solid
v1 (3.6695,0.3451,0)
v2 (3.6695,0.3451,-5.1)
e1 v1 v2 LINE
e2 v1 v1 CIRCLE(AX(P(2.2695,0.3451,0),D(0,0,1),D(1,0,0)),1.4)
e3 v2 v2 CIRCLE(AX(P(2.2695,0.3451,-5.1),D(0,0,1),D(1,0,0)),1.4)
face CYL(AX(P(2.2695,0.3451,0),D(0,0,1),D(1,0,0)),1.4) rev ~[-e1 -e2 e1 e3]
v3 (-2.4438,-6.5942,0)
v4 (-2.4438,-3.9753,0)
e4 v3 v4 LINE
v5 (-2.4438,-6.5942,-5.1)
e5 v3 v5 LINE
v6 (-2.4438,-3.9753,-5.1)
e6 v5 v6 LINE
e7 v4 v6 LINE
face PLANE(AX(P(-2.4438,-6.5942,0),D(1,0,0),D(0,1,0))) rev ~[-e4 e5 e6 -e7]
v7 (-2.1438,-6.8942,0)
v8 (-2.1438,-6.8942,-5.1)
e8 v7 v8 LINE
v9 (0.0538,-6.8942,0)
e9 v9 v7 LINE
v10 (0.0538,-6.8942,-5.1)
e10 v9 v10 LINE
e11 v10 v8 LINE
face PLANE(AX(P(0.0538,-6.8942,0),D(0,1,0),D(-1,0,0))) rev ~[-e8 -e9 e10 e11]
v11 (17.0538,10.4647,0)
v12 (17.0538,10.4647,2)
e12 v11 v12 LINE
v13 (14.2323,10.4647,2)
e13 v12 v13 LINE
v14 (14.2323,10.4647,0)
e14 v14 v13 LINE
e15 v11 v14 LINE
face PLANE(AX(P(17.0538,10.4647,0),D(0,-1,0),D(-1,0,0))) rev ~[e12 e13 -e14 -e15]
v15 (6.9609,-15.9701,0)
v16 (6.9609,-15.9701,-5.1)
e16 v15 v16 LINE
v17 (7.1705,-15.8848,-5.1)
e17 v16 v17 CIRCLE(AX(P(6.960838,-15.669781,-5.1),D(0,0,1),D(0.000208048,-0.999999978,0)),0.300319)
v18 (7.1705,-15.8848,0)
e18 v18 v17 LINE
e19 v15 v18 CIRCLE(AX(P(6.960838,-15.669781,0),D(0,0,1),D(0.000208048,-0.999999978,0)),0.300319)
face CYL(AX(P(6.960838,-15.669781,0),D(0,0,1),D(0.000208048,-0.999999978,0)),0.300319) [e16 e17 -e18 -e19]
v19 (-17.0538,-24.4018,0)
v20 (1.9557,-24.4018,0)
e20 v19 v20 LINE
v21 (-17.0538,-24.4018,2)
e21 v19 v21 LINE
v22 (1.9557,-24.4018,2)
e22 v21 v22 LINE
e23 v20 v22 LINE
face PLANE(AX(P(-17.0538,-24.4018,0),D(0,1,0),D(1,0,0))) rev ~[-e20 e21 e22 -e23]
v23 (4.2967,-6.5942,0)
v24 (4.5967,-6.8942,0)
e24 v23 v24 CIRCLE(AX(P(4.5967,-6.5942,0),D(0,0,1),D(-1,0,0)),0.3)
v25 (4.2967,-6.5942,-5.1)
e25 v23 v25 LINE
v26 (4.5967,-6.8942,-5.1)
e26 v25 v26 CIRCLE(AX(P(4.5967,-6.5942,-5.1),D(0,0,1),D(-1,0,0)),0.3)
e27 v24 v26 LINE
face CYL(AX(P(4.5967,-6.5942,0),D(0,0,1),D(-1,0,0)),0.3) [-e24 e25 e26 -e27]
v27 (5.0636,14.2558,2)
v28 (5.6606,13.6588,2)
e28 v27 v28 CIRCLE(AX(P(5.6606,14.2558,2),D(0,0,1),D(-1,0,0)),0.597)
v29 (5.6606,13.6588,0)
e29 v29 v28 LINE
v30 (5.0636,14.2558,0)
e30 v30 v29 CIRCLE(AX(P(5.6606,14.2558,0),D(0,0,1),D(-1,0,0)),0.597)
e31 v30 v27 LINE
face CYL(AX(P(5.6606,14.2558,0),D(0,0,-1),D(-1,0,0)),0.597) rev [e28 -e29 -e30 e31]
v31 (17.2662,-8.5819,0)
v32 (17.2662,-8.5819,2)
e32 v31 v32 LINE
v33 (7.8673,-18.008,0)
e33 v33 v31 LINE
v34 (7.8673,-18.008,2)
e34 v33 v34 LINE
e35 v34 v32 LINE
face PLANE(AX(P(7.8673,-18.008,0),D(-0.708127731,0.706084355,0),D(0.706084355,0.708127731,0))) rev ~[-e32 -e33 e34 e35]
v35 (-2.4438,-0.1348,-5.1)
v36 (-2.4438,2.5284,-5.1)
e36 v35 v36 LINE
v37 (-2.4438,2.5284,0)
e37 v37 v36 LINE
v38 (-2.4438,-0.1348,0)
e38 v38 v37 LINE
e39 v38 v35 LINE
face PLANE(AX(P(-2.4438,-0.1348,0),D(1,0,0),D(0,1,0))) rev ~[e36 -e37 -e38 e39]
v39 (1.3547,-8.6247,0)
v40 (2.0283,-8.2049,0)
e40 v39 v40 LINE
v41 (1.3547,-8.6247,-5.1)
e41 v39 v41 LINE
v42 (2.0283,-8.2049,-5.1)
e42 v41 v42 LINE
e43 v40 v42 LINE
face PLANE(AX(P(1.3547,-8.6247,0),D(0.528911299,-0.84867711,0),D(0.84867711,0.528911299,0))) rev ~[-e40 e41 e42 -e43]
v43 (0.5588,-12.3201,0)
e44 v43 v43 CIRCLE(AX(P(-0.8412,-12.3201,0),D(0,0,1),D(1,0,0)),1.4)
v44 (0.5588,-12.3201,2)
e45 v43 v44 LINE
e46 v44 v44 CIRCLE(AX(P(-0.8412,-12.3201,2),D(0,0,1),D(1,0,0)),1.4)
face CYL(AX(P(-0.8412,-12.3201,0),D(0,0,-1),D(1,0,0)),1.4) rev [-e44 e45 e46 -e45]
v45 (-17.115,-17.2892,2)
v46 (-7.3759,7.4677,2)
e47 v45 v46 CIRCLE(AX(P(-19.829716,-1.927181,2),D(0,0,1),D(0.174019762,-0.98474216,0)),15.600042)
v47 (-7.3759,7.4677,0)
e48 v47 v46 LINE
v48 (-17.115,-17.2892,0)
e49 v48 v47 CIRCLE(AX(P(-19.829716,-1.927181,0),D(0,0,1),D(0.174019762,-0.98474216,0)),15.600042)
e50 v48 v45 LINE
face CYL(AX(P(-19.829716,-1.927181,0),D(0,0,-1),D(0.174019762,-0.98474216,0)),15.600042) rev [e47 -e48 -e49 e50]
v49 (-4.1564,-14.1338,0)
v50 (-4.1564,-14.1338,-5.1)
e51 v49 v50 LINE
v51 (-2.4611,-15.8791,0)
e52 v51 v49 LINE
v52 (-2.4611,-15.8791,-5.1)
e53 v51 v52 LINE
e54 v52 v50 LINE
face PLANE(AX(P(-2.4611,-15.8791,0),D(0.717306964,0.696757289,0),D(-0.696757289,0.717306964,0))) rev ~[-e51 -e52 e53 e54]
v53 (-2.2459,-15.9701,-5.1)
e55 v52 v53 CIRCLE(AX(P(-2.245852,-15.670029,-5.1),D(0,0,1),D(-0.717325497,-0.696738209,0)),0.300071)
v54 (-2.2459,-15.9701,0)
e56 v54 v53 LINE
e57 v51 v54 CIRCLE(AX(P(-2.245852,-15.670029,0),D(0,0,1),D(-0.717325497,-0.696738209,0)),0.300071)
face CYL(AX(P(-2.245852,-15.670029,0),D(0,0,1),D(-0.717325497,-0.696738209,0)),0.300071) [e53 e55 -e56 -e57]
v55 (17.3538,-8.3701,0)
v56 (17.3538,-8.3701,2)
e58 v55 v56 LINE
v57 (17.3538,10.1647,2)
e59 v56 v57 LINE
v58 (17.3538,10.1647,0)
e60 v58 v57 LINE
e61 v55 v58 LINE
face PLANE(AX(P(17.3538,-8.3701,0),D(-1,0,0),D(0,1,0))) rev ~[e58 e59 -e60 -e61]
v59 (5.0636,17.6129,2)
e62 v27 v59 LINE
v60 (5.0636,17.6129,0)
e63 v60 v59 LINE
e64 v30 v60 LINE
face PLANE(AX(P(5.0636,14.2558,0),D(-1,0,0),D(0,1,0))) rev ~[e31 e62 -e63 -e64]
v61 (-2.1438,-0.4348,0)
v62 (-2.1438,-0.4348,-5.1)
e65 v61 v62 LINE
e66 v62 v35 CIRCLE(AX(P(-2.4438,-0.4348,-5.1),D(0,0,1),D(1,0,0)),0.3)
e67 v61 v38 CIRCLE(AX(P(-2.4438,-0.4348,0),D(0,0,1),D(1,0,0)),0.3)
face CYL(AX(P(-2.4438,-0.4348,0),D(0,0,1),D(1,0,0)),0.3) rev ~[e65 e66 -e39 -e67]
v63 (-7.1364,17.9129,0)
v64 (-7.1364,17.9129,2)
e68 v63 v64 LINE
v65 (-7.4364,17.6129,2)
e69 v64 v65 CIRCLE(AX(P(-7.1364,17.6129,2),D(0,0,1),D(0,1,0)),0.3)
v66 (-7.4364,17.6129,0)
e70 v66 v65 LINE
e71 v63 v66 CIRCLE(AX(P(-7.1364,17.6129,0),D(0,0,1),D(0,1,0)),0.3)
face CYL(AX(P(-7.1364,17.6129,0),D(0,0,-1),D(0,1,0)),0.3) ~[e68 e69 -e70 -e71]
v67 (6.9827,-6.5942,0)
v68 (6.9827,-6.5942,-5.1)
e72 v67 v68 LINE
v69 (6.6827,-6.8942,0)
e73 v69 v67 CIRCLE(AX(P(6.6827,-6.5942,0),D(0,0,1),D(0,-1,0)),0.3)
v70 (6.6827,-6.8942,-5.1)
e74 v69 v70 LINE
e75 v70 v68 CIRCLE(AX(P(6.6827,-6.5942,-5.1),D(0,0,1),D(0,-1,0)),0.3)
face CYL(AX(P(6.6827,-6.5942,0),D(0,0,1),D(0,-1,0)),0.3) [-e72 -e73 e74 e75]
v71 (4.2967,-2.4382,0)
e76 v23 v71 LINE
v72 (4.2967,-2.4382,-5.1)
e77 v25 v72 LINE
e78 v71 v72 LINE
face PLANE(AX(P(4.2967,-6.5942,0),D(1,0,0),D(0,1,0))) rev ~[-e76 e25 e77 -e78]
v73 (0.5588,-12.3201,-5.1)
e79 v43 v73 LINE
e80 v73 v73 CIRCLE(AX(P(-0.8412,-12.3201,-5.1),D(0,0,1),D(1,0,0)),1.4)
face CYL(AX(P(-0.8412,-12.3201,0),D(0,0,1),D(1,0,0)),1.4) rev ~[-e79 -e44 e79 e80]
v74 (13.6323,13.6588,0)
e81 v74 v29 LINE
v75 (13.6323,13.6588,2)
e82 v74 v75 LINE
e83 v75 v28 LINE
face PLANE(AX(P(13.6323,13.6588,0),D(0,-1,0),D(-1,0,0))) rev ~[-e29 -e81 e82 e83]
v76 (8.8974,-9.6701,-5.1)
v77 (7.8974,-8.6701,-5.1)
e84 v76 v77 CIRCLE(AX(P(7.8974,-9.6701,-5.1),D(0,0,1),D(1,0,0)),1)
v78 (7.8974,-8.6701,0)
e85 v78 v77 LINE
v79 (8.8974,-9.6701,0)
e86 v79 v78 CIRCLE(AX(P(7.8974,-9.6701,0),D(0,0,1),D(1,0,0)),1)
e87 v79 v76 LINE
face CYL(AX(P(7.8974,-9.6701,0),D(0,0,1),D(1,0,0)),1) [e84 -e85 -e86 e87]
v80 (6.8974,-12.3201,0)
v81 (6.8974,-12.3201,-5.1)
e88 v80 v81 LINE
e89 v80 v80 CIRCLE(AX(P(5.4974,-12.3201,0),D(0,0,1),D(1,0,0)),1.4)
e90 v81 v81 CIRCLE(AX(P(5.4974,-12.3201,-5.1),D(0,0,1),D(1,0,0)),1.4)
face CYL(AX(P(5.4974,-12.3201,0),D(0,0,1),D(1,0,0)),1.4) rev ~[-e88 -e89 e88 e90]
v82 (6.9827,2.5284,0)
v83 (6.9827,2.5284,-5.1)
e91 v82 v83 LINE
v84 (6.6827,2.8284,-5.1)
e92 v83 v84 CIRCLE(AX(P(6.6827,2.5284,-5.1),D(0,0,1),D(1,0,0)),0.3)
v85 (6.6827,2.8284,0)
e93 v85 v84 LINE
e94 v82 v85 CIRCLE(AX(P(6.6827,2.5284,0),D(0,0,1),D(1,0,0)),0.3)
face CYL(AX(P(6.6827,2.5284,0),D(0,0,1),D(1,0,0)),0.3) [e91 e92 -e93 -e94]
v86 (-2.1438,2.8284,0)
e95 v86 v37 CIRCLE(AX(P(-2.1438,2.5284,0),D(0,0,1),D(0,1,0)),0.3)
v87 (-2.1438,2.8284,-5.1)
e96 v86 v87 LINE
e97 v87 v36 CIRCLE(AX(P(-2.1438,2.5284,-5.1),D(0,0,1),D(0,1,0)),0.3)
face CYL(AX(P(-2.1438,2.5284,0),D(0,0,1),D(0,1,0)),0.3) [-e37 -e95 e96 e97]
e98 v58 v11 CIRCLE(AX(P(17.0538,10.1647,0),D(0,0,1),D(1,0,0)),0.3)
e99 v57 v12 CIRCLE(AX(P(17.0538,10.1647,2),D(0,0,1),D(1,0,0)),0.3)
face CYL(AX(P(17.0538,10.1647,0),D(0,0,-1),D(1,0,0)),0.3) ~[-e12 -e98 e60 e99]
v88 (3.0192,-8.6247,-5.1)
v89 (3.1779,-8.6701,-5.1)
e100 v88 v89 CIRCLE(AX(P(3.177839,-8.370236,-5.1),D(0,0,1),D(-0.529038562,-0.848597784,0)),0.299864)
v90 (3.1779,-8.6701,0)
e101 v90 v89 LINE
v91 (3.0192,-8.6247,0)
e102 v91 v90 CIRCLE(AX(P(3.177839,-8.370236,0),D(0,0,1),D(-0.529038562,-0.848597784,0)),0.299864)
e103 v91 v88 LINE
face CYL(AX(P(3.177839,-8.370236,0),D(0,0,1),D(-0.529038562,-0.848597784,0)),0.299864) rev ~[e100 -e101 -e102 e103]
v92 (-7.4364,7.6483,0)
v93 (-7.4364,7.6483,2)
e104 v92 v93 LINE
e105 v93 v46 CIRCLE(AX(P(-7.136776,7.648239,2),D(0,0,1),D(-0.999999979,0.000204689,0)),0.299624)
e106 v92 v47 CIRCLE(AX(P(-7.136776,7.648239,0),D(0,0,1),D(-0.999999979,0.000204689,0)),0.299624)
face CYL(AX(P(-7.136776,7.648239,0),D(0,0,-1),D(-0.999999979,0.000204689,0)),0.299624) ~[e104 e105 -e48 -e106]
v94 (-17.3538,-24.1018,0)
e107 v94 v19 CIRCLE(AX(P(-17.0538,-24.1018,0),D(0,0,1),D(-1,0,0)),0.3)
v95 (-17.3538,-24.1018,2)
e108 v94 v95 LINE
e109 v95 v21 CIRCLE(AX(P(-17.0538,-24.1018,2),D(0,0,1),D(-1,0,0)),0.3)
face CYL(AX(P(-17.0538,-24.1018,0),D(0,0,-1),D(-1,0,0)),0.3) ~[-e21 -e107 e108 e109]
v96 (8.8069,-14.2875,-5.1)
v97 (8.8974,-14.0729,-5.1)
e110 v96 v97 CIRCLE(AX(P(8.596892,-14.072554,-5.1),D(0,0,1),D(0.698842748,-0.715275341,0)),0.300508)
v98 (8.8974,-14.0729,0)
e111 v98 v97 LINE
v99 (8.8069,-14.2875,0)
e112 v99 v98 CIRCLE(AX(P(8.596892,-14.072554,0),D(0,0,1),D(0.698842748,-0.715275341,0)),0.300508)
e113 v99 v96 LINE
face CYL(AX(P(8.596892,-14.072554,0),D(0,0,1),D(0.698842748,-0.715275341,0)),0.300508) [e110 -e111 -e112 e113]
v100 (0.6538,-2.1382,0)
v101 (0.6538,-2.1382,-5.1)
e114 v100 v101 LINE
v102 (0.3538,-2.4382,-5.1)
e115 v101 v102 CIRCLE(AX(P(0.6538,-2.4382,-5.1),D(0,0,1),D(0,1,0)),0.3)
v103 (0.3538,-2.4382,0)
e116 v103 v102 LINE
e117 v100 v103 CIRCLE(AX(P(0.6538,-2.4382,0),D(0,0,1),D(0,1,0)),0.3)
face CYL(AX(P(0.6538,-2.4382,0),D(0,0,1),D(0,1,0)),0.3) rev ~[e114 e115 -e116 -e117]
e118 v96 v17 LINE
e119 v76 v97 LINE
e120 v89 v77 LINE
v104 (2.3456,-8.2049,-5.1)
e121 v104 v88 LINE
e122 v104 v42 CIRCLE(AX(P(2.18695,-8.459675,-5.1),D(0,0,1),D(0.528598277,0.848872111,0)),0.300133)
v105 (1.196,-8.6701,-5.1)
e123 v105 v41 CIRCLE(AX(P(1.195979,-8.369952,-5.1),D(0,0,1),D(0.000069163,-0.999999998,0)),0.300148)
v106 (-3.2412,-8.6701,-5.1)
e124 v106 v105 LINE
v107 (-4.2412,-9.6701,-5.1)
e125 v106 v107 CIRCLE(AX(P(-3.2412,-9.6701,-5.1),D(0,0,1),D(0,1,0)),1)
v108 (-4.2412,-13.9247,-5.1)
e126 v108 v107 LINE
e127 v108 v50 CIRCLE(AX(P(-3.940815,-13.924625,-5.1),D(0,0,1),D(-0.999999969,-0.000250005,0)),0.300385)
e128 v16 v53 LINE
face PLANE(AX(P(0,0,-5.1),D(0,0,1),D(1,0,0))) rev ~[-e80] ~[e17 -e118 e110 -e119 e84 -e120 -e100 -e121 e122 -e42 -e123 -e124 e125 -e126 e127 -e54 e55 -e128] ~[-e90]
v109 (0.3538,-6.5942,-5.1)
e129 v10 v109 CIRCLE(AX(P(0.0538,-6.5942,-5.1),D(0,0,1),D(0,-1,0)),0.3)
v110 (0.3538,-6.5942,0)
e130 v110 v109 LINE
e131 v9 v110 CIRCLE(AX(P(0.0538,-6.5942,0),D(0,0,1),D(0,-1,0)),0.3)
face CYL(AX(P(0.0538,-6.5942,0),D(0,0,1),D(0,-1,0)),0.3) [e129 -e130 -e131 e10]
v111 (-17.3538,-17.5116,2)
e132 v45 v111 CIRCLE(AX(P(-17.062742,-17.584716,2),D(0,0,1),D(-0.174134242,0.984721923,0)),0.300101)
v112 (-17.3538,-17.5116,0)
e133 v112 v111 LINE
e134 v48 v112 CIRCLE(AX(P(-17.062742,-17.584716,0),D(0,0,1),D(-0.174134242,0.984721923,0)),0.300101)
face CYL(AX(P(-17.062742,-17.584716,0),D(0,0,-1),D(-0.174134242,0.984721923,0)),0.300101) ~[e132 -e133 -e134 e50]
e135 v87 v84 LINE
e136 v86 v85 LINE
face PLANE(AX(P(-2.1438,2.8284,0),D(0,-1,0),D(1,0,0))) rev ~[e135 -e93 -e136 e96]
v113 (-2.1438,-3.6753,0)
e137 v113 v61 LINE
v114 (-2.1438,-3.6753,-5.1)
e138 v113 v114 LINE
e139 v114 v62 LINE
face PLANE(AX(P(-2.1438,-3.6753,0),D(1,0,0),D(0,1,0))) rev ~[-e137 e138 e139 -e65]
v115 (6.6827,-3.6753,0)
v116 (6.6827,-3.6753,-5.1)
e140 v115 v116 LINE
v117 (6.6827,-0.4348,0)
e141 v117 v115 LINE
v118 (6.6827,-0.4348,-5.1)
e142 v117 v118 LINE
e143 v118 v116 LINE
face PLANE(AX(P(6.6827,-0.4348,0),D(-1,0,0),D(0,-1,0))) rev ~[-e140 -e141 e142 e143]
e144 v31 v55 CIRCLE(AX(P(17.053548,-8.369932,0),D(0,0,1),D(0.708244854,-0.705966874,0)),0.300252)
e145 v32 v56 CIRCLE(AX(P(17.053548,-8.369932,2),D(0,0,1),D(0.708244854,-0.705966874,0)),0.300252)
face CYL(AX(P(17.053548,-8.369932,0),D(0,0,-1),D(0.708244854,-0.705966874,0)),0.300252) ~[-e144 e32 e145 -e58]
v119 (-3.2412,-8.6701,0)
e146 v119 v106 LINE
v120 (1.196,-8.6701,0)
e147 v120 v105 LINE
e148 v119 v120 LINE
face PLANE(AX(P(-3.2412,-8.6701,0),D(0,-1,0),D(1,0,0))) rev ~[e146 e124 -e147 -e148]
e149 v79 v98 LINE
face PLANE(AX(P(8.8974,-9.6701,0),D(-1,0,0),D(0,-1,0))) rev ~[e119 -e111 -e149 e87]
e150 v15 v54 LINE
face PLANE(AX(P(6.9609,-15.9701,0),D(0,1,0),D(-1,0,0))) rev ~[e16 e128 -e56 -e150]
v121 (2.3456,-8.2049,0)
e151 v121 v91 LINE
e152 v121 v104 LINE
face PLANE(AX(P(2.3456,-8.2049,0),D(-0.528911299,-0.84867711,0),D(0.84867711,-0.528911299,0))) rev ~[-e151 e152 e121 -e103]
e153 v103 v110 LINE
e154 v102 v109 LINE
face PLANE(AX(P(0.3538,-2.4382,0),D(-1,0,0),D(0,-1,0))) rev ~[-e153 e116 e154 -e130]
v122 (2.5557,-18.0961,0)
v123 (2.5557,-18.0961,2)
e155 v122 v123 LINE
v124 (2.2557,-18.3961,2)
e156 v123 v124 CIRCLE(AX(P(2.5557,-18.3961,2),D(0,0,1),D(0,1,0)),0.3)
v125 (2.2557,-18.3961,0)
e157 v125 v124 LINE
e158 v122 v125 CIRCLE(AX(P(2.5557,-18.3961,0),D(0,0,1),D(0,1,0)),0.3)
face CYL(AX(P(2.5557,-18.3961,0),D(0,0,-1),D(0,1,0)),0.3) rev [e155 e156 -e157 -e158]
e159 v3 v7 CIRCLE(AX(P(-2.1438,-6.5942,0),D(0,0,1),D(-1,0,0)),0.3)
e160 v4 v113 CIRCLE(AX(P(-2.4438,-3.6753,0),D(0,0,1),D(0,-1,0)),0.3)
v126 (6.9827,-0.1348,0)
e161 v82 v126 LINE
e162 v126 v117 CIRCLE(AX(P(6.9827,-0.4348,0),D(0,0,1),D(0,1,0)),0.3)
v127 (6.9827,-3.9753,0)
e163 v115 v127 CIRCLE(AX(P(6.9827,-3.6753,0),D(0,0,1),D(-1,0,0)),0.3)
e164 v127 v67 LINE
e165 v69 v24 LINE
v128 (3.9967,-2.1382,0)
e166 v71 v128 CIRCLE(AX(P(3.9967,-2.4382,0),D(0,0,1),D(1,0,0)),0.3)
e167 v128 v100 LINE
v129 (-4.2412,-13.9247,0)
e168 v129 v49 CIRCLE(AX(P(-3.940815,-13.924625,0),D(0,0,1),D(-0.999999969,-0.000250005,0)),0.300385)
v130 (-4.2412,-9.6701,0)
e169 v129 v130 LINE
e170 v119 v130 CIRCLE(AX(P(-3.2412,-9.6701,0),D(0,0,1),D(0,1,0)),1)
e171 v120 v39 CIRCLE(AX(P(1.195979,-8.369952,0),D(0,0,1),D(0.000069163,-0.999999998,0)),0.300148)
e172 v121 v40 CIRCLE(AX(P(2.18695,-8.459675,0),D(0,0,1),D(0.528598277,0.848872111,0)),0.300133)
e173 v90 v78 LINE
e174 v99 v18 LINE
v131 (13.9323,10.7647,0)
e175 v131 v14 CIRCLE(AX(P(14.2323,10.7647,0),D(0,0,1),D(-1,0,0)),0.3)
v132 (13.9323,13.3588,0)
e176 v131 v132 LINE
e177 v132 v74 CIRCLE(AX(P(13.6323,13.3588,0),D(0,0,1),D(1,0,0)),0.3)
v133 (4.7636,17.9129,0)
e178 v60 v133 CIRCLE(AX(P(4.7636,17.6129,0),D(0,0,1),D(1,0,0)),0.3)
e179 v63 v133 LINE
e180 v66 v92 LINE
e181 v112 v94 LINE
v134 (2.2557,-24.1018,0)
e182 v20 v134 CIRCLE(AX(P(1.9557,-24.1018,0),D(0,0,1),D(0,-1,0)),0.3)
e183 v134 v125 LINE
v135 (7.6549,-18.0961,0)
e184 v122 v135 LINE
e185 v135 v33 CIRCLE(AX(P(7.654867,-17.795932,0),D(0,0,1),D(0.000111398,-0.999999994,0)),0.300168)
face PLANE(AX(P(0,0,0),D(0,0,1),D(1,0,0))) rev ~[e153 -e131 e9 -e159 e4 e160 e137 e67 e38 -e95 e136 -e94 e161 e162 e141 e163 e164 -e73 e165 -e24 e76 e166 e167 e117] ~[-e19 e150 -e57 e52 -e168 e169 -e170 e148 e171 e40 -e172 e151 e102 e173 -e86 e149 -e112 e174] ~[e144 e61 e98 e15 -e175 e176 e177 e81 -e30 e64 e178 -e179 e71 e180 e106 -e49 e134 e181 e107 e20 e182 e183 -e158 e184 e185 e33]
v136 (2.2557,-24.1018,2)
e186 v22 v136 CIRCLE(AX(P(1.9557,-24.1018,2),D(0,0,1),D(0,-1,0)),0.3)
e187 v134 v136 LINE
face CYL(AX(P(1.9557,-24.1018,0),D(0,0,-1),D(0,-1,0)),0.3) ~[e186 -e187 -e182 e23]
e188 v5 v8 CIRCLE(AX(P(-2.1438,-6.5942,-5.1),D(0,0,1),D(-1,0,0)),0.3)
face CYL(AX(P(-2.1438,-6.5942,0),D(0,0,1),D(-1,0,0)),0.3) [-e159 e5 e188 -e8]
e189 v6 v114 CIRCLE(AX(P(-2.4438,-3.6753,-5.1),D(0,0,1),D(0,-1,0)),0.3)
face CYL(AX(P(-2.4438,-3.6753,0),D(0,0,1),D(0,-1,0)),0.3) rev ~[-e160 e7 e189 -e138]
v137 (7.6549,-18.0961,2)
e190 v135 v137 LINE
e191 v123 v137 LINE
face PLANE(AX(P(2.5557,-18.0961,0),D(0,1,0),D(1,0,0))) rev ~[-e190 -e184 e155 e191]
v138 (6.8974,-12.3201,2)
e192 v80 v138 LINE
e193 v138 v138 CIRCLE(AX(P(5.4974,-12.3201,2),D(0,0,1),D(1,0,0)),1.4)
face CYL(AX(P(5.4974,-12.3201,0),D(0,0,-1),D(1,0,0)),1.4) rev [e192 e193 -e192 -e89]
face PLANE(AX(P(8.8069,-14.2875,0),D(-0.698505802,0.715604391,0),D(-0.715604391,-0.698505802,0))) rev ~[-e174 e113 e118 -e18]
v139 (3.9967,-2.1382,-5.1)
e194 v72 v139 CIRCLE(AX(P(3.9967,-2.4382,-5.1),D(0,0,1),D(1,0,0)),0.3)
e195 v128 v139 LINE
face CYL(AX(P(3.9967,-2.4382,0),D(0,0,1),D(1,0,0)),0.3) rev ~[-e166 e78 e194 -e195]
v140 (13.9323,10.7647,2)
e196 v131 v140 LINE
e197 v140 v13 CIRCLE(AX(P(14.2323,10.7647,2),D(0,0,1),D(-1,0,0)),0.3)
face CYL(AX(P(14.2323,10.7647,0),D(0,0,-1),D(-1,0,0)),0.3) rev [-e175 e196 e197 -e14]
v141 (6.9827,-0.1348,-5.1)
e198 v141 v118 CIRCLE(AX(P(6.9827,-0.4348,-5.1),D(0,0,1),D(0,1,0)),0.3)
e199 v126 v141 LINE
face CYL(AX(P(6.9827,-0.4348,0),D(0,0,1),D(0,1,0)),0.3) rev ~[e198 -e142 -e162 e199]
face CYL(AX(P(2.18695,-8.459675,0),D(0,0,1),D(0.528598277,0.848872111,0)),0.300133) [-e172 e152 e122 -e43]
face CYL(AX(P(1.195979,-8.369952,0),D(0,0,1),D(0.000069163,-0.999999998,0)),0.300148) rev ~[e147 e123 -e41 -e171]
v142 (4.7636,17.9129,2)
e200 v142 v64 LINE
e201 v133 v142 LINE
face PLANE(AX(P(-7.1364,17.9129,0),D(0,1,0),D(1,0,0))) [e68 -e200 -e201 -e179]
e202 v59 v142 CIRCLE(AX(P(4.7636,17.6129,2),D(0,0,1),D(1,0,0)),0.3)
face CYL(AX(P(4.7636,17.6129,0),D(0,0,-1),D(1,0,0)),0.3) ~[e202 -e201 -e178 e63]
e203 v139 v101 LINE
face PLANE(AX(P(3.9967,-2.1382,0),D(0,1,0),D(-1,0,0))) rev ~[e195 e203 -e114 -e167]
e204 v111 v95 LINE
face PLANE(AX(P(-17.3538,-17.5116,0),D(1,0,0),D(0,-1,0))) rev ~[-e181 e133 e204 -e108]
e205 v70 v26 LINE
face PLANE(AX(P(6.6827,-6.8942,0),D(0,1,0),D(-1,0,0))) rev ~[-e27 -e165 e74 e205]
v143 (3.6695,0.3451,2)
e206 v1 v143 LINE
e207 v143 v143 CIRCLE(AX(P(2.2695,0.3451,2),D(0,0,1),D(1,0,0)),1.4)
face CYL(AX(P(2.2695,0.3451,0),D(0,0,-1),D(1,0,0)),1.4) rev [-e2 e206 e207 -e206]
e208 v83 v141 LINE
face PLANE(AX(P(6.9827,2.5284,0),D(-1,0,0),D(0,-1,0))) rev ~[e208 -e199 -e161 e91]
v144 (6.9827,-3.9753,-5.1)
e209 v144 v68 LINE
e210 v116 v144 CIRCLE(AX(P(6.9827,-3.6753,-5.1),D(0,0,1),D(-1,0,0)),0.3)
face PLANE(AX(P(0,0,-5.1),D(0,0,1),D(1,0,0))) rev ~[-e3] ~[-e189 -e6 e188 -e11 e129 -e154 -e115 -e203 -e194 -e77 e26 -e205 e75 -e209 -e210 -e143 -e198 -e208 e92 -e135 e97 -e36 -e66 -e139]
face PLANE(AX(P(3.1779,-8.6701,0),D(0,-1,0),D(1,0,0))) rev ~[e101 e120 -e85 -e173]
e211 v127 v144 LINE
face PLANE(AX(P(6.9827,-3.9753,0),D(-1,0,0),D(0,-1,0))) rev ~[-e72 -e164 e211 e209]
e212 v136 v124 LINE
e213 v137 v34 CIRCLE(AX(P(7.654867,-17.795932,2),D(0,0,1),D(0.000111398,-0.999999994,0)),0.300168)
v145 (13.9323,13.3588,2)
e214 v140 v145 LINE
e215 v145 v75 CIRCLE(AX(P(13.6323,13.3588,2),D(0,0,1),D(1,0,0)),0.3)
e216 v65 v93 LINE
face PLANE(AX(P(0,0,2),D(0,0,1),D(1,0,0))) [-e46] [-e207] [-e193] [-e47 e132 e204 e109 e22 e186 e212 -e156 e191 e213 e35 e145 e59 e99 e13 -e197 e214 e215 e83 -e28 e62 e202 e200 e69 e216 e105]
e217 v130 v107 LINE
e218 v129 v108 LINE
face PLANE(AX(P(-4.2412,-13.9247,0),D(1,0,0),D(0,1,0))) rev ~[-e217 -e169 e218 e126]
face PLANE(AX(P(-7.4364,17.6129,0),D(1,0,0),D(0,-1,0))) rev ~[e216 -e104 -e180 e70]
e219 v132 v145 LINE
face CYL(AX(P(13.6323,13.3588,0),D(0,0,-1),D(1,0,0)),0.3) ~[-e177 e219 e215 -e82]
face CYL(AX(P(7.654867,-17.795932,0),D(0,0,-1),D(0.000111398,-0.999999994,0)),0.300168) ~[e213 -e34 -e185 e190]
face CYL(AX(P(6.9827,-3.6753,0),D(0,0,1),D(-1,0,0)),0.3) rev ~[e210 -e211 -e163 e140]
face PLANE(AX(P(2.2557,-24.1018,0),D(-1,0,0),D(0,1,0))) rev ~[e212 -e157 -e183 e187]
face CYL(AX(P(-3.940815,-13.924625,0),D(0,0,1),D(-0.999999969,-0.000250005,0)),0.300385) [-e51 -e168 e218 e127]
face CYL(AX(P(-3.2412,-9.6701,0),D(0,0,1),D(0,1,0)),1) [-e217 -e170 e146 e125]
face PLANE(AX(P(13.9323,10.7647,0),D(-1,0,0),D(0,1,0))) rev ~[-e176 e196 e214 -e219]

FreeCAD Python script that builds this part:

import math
import FreeCAD as App
import Part
import Sketcher
from FreeCAD import Vector
Q = App.Units.Quantity

doc = App.newDocument("Part")
body = doc.addObject("PartDesign::Body", "Body")
body.AllowCompound = True

# Sketch on XY plane
sketch1 = body.newObject("Sketcher::SketchObject", "Sketch")
sketch1.AttachmentSupport = (doc.getObject("XY_Plane"), [""])
sketch1.MapMode = "FlatFace"
sketch1.addGeometry([
    Part.ArcOfCircle(Part.Circle(Vector(1.2, -8.37, 0), Vector(0, 0, 1), 0.3), math.radians(-90), math.radians(-58)),  # 0
    Part.LineSegment(Vector(1.2, -8.67, 0), Vector(-3.24, -8.67, 0)),  # 1
    Part.ArcOfCircle(Part.Circle(Vector(-3.24, -9.67, 0), Vector(0, 0, 1), 1), math.radians(90), math.radians(180)),  # 2
    Part.LineSegment(Vector(-4.24, -9.67, 0), Vector(-4.24, -13.92, 0)),  # 3
    Part.ArcOfCircle(Part.Circle(Vector(-3.94, -13.92, 0), Vector(0, 0, 1), 0.3), math.radians(180), math.radians(224)),  # 4
    Part.LineSegment(Vector(-4.16, -14.13, 0), Vector(-2.46, -15.88, 0)),  # 5
    Part.ArcOfCircle(Part.Circle(Vector(-2.25, -15.67, 0), Vector(0, 0, 1), 0.3), math.radians(-136), math.radians(-90)),  # 6
    Part.LineSegment(Vector(-2.25, -15.97, 0), Vector(6.96, -15.97, 0)),  # 7
    Part.ArcOfCircle(Part.Circle(Vector(6.96, -15.67, 0), Vector(0, 0, 1), 0.3), math.radians(-90), math.radians(-46)),  # 8
    Part.LineSegment(Vector(7.17, -15.88, 0), Vector(8.81, -14.29, 0)),  # 9
    Part.ArcOfCircle(Part.Circle(Vector(8.6, -14.07, 0), Vector(0, 0, 1), 0.3), math.radians(-46), math.radians(0)),  # 10
    Part.LineSegment(Vector(8.9, -14.07, 0), Vector(8.9, -9.67, 0)),  # 11
    Part.ArcOfCircle(Part.Circle(Vector(7.9, -9.67, 0), Vector(0, 0, 1), 1), math.radians(0), math.radians(90)),  # 12
    Part.LineSegment(Vector(7.9, -8.67, 0), Vector(3.18, -8.67, 0)),  # 13
    Part.ArcOfCircle(Part.Circle(Vector(3.18, -8.37, 0), Vector(0, 0, 1), 0.3), math.radians(-122), math.radians(-90)),  # 14
    Part.LineSegment(Vector(3.02, -8.62, 0), Vector(2.35, -8.2, 0)),  # 15
    Part.ArcOfCircle(Part.Circle(Vector(2.19, -8.46, 0), Vector(0, 0, 1), 0.3), math.radians(58), math.radians(122)),  # 16
    Part.LineSegment(Vector(2.03, -8.2, 0), Vector(1.35, -8.62, 0)),  # 17
    Part.Circle(Vector(-0.84, -12.32, 0), Vector(0, 0, 1), 1.4),  # 18
    Part.Circle(Vector(5.5, -12.32, 0), Vector(0, 0, 1), 1.4),  # 19
    Part.ArcOfCircle(Part.Circle(Vector(4, -2.44, 0), Vector(0, 0, 1), 0.3), math.radians(0), math.radians(90)),  # 20
    Part.LineSegment(Vector(4.3, -2.44, 0), Vector(4.3, -6.59, 0)),  # 21
    Part.ArcOfCircle(Part.Circle(Vector(4.6, -6.59, 0), Vector(0, 0, 1), 0.3), math.radians(180), math.radians(270)),  # 22
    Part.LineSegment(Vector(4.6, -6.89, 0), Vector(6.68, -6.89, 0)),  # 23
    Part.ArcOfCircle(Part.Circle(Vector(6.68, -6.59, 0), Vector(0, 0, 1), 0.3), math.radians(-90), math.radians(0)),  # 24
    Part.LineSegment(Vector(6.98, -6.59, 0), Vector(6.98, -3.98, 0)),  # 25
    Part.ArcOfCircle(Part.Circle(Vector(6.98, -3.68, 0), Vector(0, 0, 1), 0.3), math.radians(180), math.radians(270)),  # 26
    Part.LineSegment(Vector(6.68, -3.68, 0), Vector(6.68, -0.43, 0)),  # 27
    Part.ArcOfCircle(Part.Circle(Vector(6.98, -0.43, 0), Vector(0, 0, 1), 0.3), math.radians(90), math.radians(180)),  # 28
    Part.LineSegment(Vector(6.98, -0.13, 0), Vector(6.98, 2.53, 0)),  # 29
    Part.ArcOfCircle(Part.Circle(Vector(6.68, 2.53, 0), Vector(0, 0, 1), 0.3), math.radians(0), math.radians(90)),  # 30
    Part.LineSegment(Vector(6.68, 2.83, 0), Vector(-2.14, 2.83, 0)),  # 31
    Part.ArcOfCircle(Part.Circle(Vector(-2.14, 2.53, 0), Vector(0, 0, 1), 0.3), math.radians(90), math.radians(180)),  # 32
    Part.LineSegment(Vector(-2.44, 2.53, 0), Vector(-2.44, -0.13, 0)),  # 33
    Part.ArcOfCircle(Part.Circle(Vector(-2.44, -0.43, 0), Vector(0, 0, 1), 0.3), math.radians(0), math.radians(90)),  # 34
    Part.LineSegment(Vector(-2.14, -0.43, 0), Vector(-2.14, -3.68, 0)),  # 35
    Part.ArcOfCircle(Part.Circle(Vector(-2.44, -3.68, 0), Vector(0, 0, 1), 0.3), math.radians(-90), math.radians(0)),  # 36
    Part.LineSegment(Vector(-2.44, -3.98, 0), Vector(-2.44, -6.59, 0)),  # 37
    Part.ArcOfCircle(Part.Circle(Vector(-2.14, -6.59, 0), Vector(0, 0, 1), 0.3), math.radians(180), math.radians(270)),  # 38
    Part.LineSegment(Vector(-2.14, -6.89, 0), Vector(0.05, -6.89, 0)),  # 39
    Part.ArcOfCircle(Part.Circle(Vector(0.05, -6.59, 0), Vector(0, 0, 1), 0.3), math.radians(-90), math.radians(0)),  # 40
    Part.LineSegment(Vector(0.35, -6.59, 0), Vector(0.35, -2.44, 0)),  # 41
    Part.ArcOfCircle(Part.Circle(Vector(0.65, -2.44, 0), Vector(0, 0, 1), 0.3), math.radians(90), math.radians(180)),  # 42
    Part.LineSegment(Vector(0.65, -2.14, 0), Vector(4, -2.14, 0)),  # 43
    Part.Circle(Vector(2.27, 0.35, 0), Vector(0, 0, 1), 1.4),  # 44
], False)
sketch1.addConstraint([
    Sketcher.Constraint("Tangent", 0, 1, 1, 1),
    Sketcher.Constraint("Tangent", 1, 2, 2, 1),
    Sketcher.Constraint("Tangent", 2, 2, 3, 1),
    Sketcher.Constraint("Tangent", 3, 2, 4, 1),
    Sketcher.Constraint("Tangent", 4, 2, 5, 1),
    Sketcher.Constraint("Tangent", 5, 2, 6, 1),
    Sketcher.Constraint("Tangent", 6, 2, 7, 1),
    Sketcher.Constraint("Tangent", 7, 2, 8, 1),
    Sketcher.Constraint("Tangent", 8, 2, 9, 1),
    Sketcher.Constraint("Tangent", 9, 2, 10, 1),
    Sketcher.Constraint("Tangent", 10, 2, 11, 1),
    Sketcher.Constraint("Tangent", 11, 2, 12, 1),
    Sketcher.Constraint("Tangent", 12, 2, 13, 1),
    Sketcher.Constraint("Tangent", 13, 2, 14, 2),
    Sketcher.Constraint("Tangent", 14, 1, 15, 1),
    Sketcher.Constraint("Tangent", 15, 2, 16, 1),
    Sketcher.Constraint("Tangent", 16, 2, 17, 1),
    Sketcher.Constraint("Tangent", 17, 2, 0, 2),
    Sketcher.Constraint("Tangent", 20, 1, 21, 1),
    Sketcher.Constraint("Tangent", 21, 2, 22, 1),
    Sketcher.Constraint("Tangent", 22, 2, 23, 1),
    Sketcher.Constraint("Tangent", 23, 2, 24, 1),
    Sketcher.Constraint("Tangent", 24, 2, 25, 1),
    Sketcher.Constraint("Coincident", 25, 2, 26, 2),
    Sketcher.Constraint("Tangent", 26, 1, 27, 1),
    Sketcher.Constraint("Tangent", 27, 2, 28, 2),
    Sketcher.Constraint("Coincident", 28, 1, 29, 1),
    Sketcher.Constraint("Tangent", 29, 2, 30, 1),
    Sketcher.Constraint("Tangent", 30, 2, 31, 1),
    Sketcher.Constraint("Tangent", 31, 2, 32, 1),
    Sketcher.Constraint("Tangent", 32, 2, 33, 1),
    Sketcher.Constraint("Coincident", 33, 2, 34, 2),
    Sketcher.Constraint("Tangent", 34, 1, 35, 1),
    Sketcher.Constraint("Tangent", 35, 2, 36, 2),
    Sketcher.Constraint("Coincident", 36, 1, 37, 1),
    Sketcher.Constraint("Tangent", 37, 2, 38, 1),
    Sketcher.Constraint("Tangent", 38, 2, 39, 1),
    Sketcher.Constraint("Tangent", 39, 2, 40, 1),
    Sketcher.Constraint("Tangent", 40, 2, 41, 1),
    Sketcher.Constraint("Tangent", 41, 2, 42, 2),
    Sketcher.Constraint("Tangent", 42, 1, 43, 1),
    Sketcher.Constraint("Tangent", 43, 2, 20, 2),
    Sketcher.Constraint("Horizontal", 1),
    Sketcher.Constraint("Vertical", 3),
    Sketcher.Constraint("Horizontal", 7),
    Sketcher.Constraint("Vertical", 11),
    Sketcher.Constraint("Horizontal", 13),
    Sketcher.Constraint("Vertical", 21),
    Sketcher.Constraint("Horizontal", 23),
    Sketcher.Constraint("Vertical", 25),
    Sketcher.Constraint("Vertical", 27),
    Sketcher.Constraint("Vertical", 29),
    Sketcher.Constraint("Horizontal", 31),
    Sketcher.Constraint("Vertical", 33),
    Sketcher.Constraint("Vertical", 35),
    Sketcher.Constraint("Vertical", 37),
    Sketcher.Constraint("Horizontal", 39),
    Sketcher.Constraint("Vertical", 41),
    Sketcher.Constraint("Horizontal", 43),
    Sketcher.Constraint("Equal", 0, 4),
    Sketcher.Constraint("Equal", 4, 6),
    Sketcher.Constraint("Equal", 6, 8),
    Sketcher.Constraint("Equal", 8, 10),
    Sketcher.Constraint("Equal", 2, 12),
    Sketcher.Constraint("Equal", 10, 14),
    Sketcher.Constraint("Equal", 14, 16),
    Sketcher.Constraint("Equal", 18, 19),
    Sketcher.Constraint("Equal", 16, 20),
    Sketcher.Constraint("Equal", 20, 22),
    Sketcher.Constraint("Equal", 22, 24),
    Sketcher.Constraint("Equal", 24, 26),
    Sketcher.Constraint("Equal", 26, 28),
    Sketcher.Constraint("Equal", 28, 30),
    Sketcher.Constraint("Equal", 30, 32),
    Sketcher.Constraint("Equal", 32, 34),
    Sketcher.Constraint("Equal", 34, 36),
    Sketcher.Constraint("Equal", 36, 38),
    Sketcher.Constraint("Equal", 38, 40),
    Sketcher.Constraint("Equal", 40, 42),
    Sketcher.Constraint("Equal", 19, 44),
    Sketcher.Constraint("Horizontal", 2, 3, 12, 3),
    Sketcher.Constraint("Horizontal", 18, 3, 19, 3),
    Sketcher.Constraint("Horizontal", 28, 3, 34, 3),
    Sketcher.Constraint("Horizontal", 26, 3, 36, 3),
    Sketcher.Constraint("Horizontal", 24, 3, 38, 3),
    Sketcher.Constraint("Horizontal", 15, 2, 16, 2),
    Sketcher.Constraint("Vertical", 24, 3, 30, 3),
    Sketcher.Constraint("Vertical", 32, 3, 38, 3),
    Sketcher.Constraint("Vertical", 28, 3, 24, 2),
    Sketcher.Constraint("Vertical", 36, 3, 32, 2),
    Sketcher.Constraint("Radius", 2, Q("1 mm")),
    Sketcher.Constraint("Diameter", 18, Q("2.8 mm")),
    Sketcher.Constraint("Radius", 0, Q("0.3 mm")),
    Sketcher.Constraint("DistanceX", 23, 1, 23, 2, Q("2.086 mm")),
    Sketcher.Constraint("DistanceX", 43, 1, 43, 2, Q("3.343 mm")),
    Sketcher.Constraint("DistanceY", 21, 2, 21, 1, Q("4.156 mm")),
    Sketcher.Constraint("DistanceY", 25, 1, 25, 2, Q("2.619 mm")),
    Sketcher.Constraint("DistanceY", 0, 3, -1, 1, Q("8.37 mm")),
    Sketcher.Constraint("DistanceY", 6, 3, -1, 1, Q("15.67 mm")),
    Sketcher.Constraint("DistanceY", 18, 3, -1, 1, Q("12.32 mm")),
    Sketcher.Constraint("DistanceX", 1, 2, 1, 1, Q("4.4372 mm")),
    Sketcher.Constraint("DistanceX", 7, 1, 7, 2, Q("9.2068 mm")),
    Sketcher.Constraint("DistanceX", 13, 2, 13, 1, Q("4.7195 mm")),
    Sketcher.Constraint("DistanceX", 31, 2, 31, 1, Q("8.8265 mm")),
    Sketcher.Constraint("DistanceY", 3, 2, 3, 1, Q("4.2546 mm")),
    Sketcher.Constraint("DistanceY", 11, 1, 11, 2, Q("4.4028 mm")),
    Sketcher.Constraint("DistanceY", 27, 1, 27, 2, Q("3.2405 mm")),
    Sketcher.Constraint("DistanceY", 29, 1, 29, 2, Q("2.6632 mm")),
    Sketcher.Constraint("DistanceX", -1, 1, 0, 3, Q("1.196 mm")),
    Sketcher.Constraint("DistanceX", 6, 3, -1, 1, Q("2.246 mm")),
    Sketcher.Constraint("DistanceX", -1, 1, 14, 3, Q("3.178 mm")),
    Sketcher.Constraint("DistanceY", -1, 1, 44, 3, Q("0.345 mm")),
    Sketcher.Constraint("DistanceY", 15, 2, -1, 1, Q("8.205 mm")),
    Sketcher.Constraint("DistanceX", 18, 3, -1, 1, Q("0.8412 mm")),
    Sketcher.Constraint("DistanceX", -1, 1, 19, 3, Q("5.4974 mm")),
    Sketcher.Constraint("DistanceX", -1, 1, 20, 3, Q("3.9967 mm")),
    Sketcher.Constraint("DistanceY", 20, 3, -1, 1, Q("2.4382 mm")),
    Sketcher.Constraint("DistanceX", -1, 1, 44, 3, Q("2.2695 mm")),
])
pad1 = body.newObject("PartDesign::Pad", "Pad")
pad1.Profile = sketch1
pad1.Length = 5.1
pad1.Reversed = True

# Sketch on XY plane
sketch2 = body.newObject("Sketcher::SketchObject", "Sketch001")
sketch2.AttachmentSupport = (doc.getObject("XY_Plane"), [""])
sketch2.MapMode = "FlatFace"
sketch2.addGeometry([
    Part.LineSegment(Vector(17.35, -8.37, 0), Vector(17.35, 10.16, 0)),  # 0
    Part.ArcOfCircle(Part.Circle(Vector(17.05, 10.16, 0), Vector(0, 0, 1), 0.3), math.radians(0), math.radians(90)),  # 1
    Part.LineSegment(Vector(17.05, 10.46, 0), Vector(14.23, 10.46, 0)),  # 2
    Part.ArcOfCircle(Part.Circle(Vector(14.23, 10.76, 0), Vector(0, 0, 1), 0.3), math.radians(180), math.radians(270)),  # 3
    Part.LineSegment(Vector(13.93, 10.76, 0), Vector(13.93, 13.36, 0)),  # 4
    Part.ArcOfCircle(Part.Circle(Vector(13.63, 13.36, 0), Vector(0, 0, 1), 0.3), math.radians(0), math.radians(90)),  # 5
    Part.LineSegment(Vector(13.63, 13.66, 0), Vector(5.66, 13.66, 0)),  # 6
    Part.ArcOfCircle(Part.Circle(Vector(5.66, 14.26, 0), Vector(0, 0, 1), 0.6), math.radians(180), math.radians(270)),  # 7
    Part.LineSegment(Vector(5.06, 14.26, 0), Vector(5.06, 17.61, 0)),  # 8
    Part.ArcOfCircle(Part.Circle(Vector(4.76, 17.61, 0), Vector(0, 0, 1), 0.3), math.radians(0), math.radians(90)),  # 9
    Part.LineSegment(Vector(4.76, 17.91, 0), Vector(-7.14, 17.91, 0)),  # 10
    Part.ArcOfCircle(Part.Circle(Vector(-7.14, 17.61, 0), Vector(0, 0, 1), 0.3), math.radians(90), math.radians(180)),  # 11
    Part.LineSegment(Vector(-7.44, 17.61, 0), Vector(-7.44, 7.65, 0)),  # 12
    Part.ArcOfCircle(Part.Circle(Vector(-7.14, 7.65, 0), Vector(0, 0, 1), 0.3), math.radians(180), math.radians(217)),  # 13
    Part.ArcOfCircle(Part.Circle(Vector(-19.83, -1.93, 0), Vector(0, 0, 1), 15.6), math.radians(-80), math.radians(37)),  # 14
    Part.ArcOfCircle(Part.Circle(Vector(-17.06, -17.58, 0), Vector(0, 0, 1), 0.3), math.radians(100), math.radians(166)),  # 15
    Part.LineSegment(Vector(-17.35, -17.51, 0), Vector(-17.35, -24.1, 0)),  # 16
    Part.ArcOfCircle(Part.Circle(Vector(-17.05, -24.1, 0), Vector(0, 0, 1), 0.3), math.radians(180), math.radians(270)),  # 17
    Part.LineSegment(Vector(-17.05, -24.4, 0), Vector(1.96, -24.4, 0)),  # 18
    Part.ArcOfCircle(Part.Circle(Vector(1.96, -24.1, 0), Vector(0, 0, 1), 0.3), math.radians(-90), math.radians(0)),  # 19
    Part.LineSegment(Vector(2.26, -24.1, 0), Vector(2.26, -18.4, 0)),  # 20
    Part.ArcOfCircle(Part.Circle(Vector(2.56, -18.4, 0), Vector(0, 0, 1), 0.3), math.radians(90), math.radians(180)),  # 21
    Part.LineSegment(Vector(2.56, -18.1, 0), Vector(7.65, -18.1, 0)),  # 22
    Part.ArcOfCircle(Part.Circle(Vector(7.65, -17.8, 0), Vector(0, 0, 1), 0.3), math.radians(-90), math.radians(-45)),  # 23
    Part.LineSegment(Vector(7.87, -18.01, 0), Vector(17.27, -8.58, 0)),  # 24
    Part.ArcOfCircle(Part.Circle(Vector(17.05, -8.37, 0), Vector(0, 0, 1), 0.3), math.radians(-45), math.radians(0)),  # 25
    Part.Circle(Vector(-0.84, -12.32, 0), Vector(0, 0, 1), 1.4),  # 26
    Part.Circle(Vector(5.5, -12.32, 0), Vector(0, 0, 1), 1.4),  # 27
    Part.Circle(Vector(2.27, 0.35, 0), Vector(0, 0, 1), 1.4),  # 28
], False)
sketch2.addConstraint([
    Sketcher.Constraint("Tangent", 0, 2, 1, 1),
    Sketcher.Constraint("Tangent", 1, 2, 2, 1),
    Sketcher.Constraint("Tangent", 2, 2, 3, 2),
    Sketcher.Constraint("Tangent", 3, 1, 4, 1),
    Sketcher.Constraint("Tangent", 4, 2, 5, 1),
    Sketcher.Constraint("Tangent", 5, 2, 6, 1),
    Sketcher.Constraint("Tangent", 6, 2, 7, 2),
    Sketcher.Constraint("Tangent", 7, 1, 8, 1),
    Sketcher.Constraint("Tangent", 8, 2, 9, 1),
    Sketcher.Constraint("Tangent", 9, 2, 10, 1),
    Sketcher.Constraint("Tangent", 10, 2, 11, 1),
    Sketcher.Constraint("Tangent", 11, 2, 12, 1),
    Sketcher.Constraint("Tangent", 12, 2, 13, 1),
    Sketcher.Constraint("Tangent", 13, 2, 14, 2),
    Sketcher.Constraint("Tangent", 14, 1, 15, 1),
    Sketcher.Constraint("Coincident", 15, 2, 16, 1),
    Sketcher.Constraint("Tangent", 16, 2, 17, 1),
    Sketcher.Constraint("Tangent", 17, 2, 18, 1),
    Sketcher.Constraint("Tangent", 18, 2, 19, 1),
    Sketcher.Constraint("Tangent", 19, 2, 20, 1),
    Sketcher.Constraint("Tangent", 20, 2, 21, 2),
    Sketcher.Constraint("Tangent", 21, 1, 22, 1),
    Sketcher.Constraint("Tangent", 22, 2, 23, 1),
    Sketcher.Constraint("Tangent", 23, 2, 24, 1),
    Sketcher.Constraint("Tangent", 24, 2, 25, 1),
    Sketcher.Constraint("Tangent", 25, 2, 0, 1),
    Sketcher.Constraint("Vertical", 0),
    Sketcher.Constraint("Horizontal", 2),
    Sketcher.Constraint("Vertical", 4),
    Sketcher.Constraint("Horizontal", 6),
    Sketcher.Constraint("Vertical", 8),
    Sketcher.Constraint("Horizontal", 10),
    Sketcher.Constraint("Vertical", 12),
    Sketcher.Constraint("Vertical", 16),
    Sketcher.Constraint("Horizontal", 18),
    Sketcher.Constraint("Vertical", 20),
    Sketcher.Constraint("Horizontal", 22),
    Sketcher.Constraint("Equal", 1, 3),
    Sketcher.Constraint("Equal", 3, 5),
    Sketcher.Constraint("Equal", 5, 9),
    Sketcher.Constraint("Equal", 9, 11),
    Sketcher.Constraint("Equal", 11, 13),
    Sketcher.Constraint("Equal", 13, 15),
    Sketcher.Constraint("Equal", 15, 17),
    Sketcher.Constraint("Equal", 17, 19),
    Sketcher.Constraint("Equal", 19, 21),
    Sketcher.Constraint("Equal", 21, 23),
    Sketcher.Constraint("Equal", 23, 25),
    Sketcher.Constraint("Equal", 26, 27),
    Sketcher.Constraint("Equal", 27, 28),
    Sketcher.Constraint("Horizontal", 26, 3, 27, 3),
    Sketcher.Constraint("Diameter", 26, Q("2.8 mm")),
    Sketcher.Constraint("Radius", 1, Q("0.3 mm")),
    Sketcher.Constraint("Radius", 14, Q("15.6 mm")),
    Sketcher.Constraint("DistanceX", 10, 2, 10, 1, Q("11.9 mm")),
    Sketcher.Constraint("Radius", 7, Q("0.597 mm")),
    Sketcher.Constraint("DistanceY", 4, 1, 4, 2, Q("2.594 mm")),
    Sketcher.Constraint("DistanceY", 8, 1, 8, 2, Q("3.357 mm")),
    Sketcher.Constraint("DistanceY", 25, 3, -1, 1, Q("8.37 mm")),
    Sketcher.Constraint("DistanceY", 26, 3, -1, 1, Q("12.32 mm")),
    Sketcher.Constraint("DistanceY", 14, 3, 11, 3, Q("19.54 mm")),
    Sketcher.Constraint("DistanceY", 17, 3, 13, 3, Q("31.75 mm")),
    Sketcher.Constraint("DistanceX", 2, 2, 2, 1, Q("2.8215 mm")),
    Sketcher.Constraint("DistanceX", 6, 2, 6, 1, Q("7.9717 mm")),
    Sketcher.Constraint("DistanceX", 18, 1, 18, 2, Q("19.0095 mm")),
    Sketcher.Constraint("DistanceX", 22, 1, 22, 2, Q("5.0992 mm")),
    Sketcher.Constraint("DistanceY", 0, 1, 0, 2, Q("18.5348 mm")),
    Sketcher.Constraint("DistanceY", 12, 2, 12, 1, Q("9.9646 mm")),
    Sketcher.Constraint("DistanceY", 16, 2, 16, 1, Q("6.5902 mm")),
    Sketcher.Constraint("DistanceY", 20, 1, 20, 2, Q("5.7057 mm")),
    Sketcher.Constraint("DistanceX", -1, 1, 23, 3, Q("7.655 mm")),
    Sketcher.Constraint("DistanceY", -1, 1, 28, 3, Q("0.345 mm")),
    Sketcher.Constraint("DistanceX", 13, 2, -1, 1, Q("7.376 mm")),
    Sketcher.Constraint("DistanceX", 26, 3, 21, 3, Q("3.397 mm")),
    Sketcher.Constraint("DistanceX", 13, 3, 28, 3, Q("9.406 mm")),
    Sketcher.Constraint("DistanceX", 28, 3, 27, 3, Q("3.228 mm")),
])
pad2 = body.newObject("PartDesign::Pad", "Pad001")
pad2.Profile = sketch2
pad2.Length = 2

doc.recompute()
